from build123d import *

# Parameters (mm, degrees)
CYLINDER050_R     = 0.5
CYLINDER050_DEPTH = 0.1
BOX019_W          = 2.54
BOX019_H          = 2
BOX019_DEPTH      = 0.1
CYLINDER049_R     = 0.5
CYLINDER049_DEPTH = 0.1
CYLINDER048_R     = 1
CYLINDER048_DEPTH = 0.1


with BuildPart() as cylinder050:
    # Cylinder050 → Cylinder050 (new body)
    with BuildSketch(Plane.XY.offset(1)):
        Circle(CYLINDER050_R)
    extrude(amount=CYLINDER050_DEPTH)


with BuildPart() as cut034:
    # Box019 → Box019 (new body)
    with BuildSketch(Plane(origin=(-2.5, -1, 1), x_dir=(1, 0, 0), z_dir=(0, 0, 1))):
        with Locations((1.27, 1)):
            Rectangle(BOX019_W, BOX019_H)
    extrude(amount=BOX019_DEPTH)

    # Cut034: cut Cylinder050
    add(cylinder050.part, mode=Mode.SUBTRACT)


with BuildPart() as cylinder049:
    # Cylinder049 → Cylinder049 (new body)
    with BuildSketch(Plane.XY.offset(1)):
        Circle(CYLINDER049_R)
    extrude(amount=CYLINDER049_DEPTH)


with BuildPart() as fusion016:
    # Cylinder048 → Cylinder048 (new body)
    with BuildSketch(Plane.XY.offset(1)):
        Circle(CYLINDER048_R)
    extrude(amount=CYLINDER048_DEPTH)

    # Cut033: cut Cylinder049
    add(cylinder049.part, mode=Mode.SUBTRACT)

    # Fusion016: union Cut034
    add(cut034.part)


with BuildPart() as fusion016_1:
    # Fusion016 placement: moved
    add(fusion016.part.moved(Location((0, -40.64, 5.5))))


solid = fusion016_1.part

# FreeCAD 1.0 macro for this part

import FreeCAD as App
import Part
import Sketcher
Q = App.Units.Quantity

doc = App.newDocument("Part")
params = doc.addObject("Spreadsheet::Sheet", "Params")
for row, (alias, value) in enumerate([
    ("sketch1_diameter", "1 mm"),
    ("pad1_length", "0.1 mm"),
    ("sketch2_height", "2 mm"),
    ("sketch2_width", "2.54 mm"),
    ("pad2_length", "0.1 mm"),
    ("sketch3_diameter", "1 mm"),
    ("pad3_length", "0.1 mm"),
    ("sketch4_diameter", "2 mm"),
    ("pad4_length", "0.1 mm"),
], start=1):
    params.set(f"A{row}", alias)
    params.set(f"B{row}", "=" + value)
    params.setAlias(f"B{row}", alias)

body = doc.addObject("PartDesign::Body", "Body")

sketch1 = body.newObject("Sketcher::SketchObject", "Sketch")
sketch1.AttachmentSupport = (doc.getObject("XY_Plane"), [""])
sketch1.MapMode = "FlatFace"
sketch1.AttachmentOffset = App.Placement(App.Vector(0, 0, 1), App.Rotation())
sketch1.addGeometry(Part.Circle(App.Vector(0, 0, 0), App.Vector(0, 0, 1), 0.5), False)
sketch1.addConstraint([
    Sketcher.Constraint("Coincident", 0, 3, -1, 1),
    Sketcher.Constraint("Diameter", 0, Q("1 mm")),
])
sketch1.setExpression("Constraints[1]", "Params.sketch1_diameter")
pad1 = body.newObject("PartDesign::Pad", "Pad")
pad1.Profile = sketch1
pad1.setExpression("Length", "Params.pad1_length")
body2 = doc.addObject("PartDesign::Body", "Body001")

sketch2 = body2.newObject("Sketcher::SketchObject", "Sketch001")
sketch2.AttachmentSupport = (doc.getObject("XY_Plane001"), [""])
sketch2.MapMode = "FlatFace"
sketch2.AttachmentOffset = App.Placement(App.Vector(0, 0, 1), App.Rotation())
sketch2.addGeometry([
    Part.LineSegment(App.Vector(-2.5, 1, 0), App.Vector(-2.5, -1, 0)),
    Part.LineSegment(App.Vector(-2.5, -1, 0), App.Vector(0, -1, 0)),
    Part.LineSegment(App.Vector(0, -1, 0), App.Vector(0, 1, 0)),
    Part.LineSegment(App.Vector(0, 1, 0), App.Vector(-2.5, 1, 0)),
], False)
sketch2.addConstraint([
    Sketcher.Constraint("Coincident", 0, 2, 1, 1),
    Sketcher.Constraint("Coincident", 1, 2, 2, 1),
    Sketcher.Constraint("Coincident", 2, 2, 3, 1),
    Sketcher.Constraint("Coincident", 3, 2, 0, 1),
    Sketcher.Constraint("Vertical", 0),
    Sketcher.Constraint("Horizontal", 1),
    Sketcher.Constraint("Vertical", 2),
    Sketcher.Constraint("Horizontal", 3),
    Sketcher.Constraint("DistanceY", 0, 2, 0, 1, Q("2 mm")),
    Sketcher.Constraint("DistanceY", 0, 2, -1, 1, Q("1 mm")),
    Sketcher.Constraint("DistanceX", 1, 1, 1, 2, Q("2.54 mm")),
    Sketcher.Constraint("DistanceX", 0, 2, -1, 1, Q("2.5 mm")),
])
sketch2.setExpression("Constraints[8]", "Params.sketch2_height")
sketch2.setExpression("Constraints[10]", "Params.sketch2_width")
pad2 = body2.newObject("PartDesign::Pad", "Pad001")
pad2.Profile = sketch2
pad2.setExpression("Length", "Params.pad2_length")
doc.recompute()

boolean = body2.newObject("PartDesign::Boolean", "Boolean")
boolean.Type = "Cut"
boolean.addObjects([body])
body3 = doc.addObject("PartDesign::Body", "Body002")

sketch3 = body3.newObject("Sketcher::SketchObject", "Sketch002")
sketch3.AttachmentSupport = (doc.getObject("XY_Plane002"), [""])
sketch3.MapMode = "FlatFace"
sketch3.AttachmentOffset = App.Placement(App.Vector(0, 0, 1), App.Rotation())
sketch3.addGeometry(Part.Circle(App.Vector(0, 0, 0), App.Vector(0, 0, 1), 0.5), False)
sketch3.addConstraint([
    Sketcher.Constraint("Coincident", 0, 3, -1, 1),
    Sketcher.Constraint("Diameter", 0, Q("1 mm")),
])
sketch3.setExpression("Constraints[1]", "Params.sketch3_diameter")
pad3 = body3.newObject("PartDesign::Pad", "Pad002")
pad3.Profile = sketch3
pad3.setExpression("Length", "Params.pad3_length")
body4 = doc.addObject("PartDesign::Body", "Body003")

sketch4 = body4.newObject("Sketcher::SketchObject", "Sketch003")
sketch4.AttachmentSupport = (doc.getObject("XY_Plane003"), [""])
sketch4.MapMode = "FlatFace"
sketch4.AttachmentOffset = App.Placement(App.Vector(0, 0, 1), App.Rotation())
sketch4.addGeometry(Part.Circle(App.Vector(0, 0, 0), App.Vector(0, 0, 1), 1), False)
sketch4.addConstraint([
    Sketcher.Constraint("Coincident", 0, 3, -1, 1),
    Sketcher.Constraint("Diameter", 0, Q("2 mm")),
])
sketch4.setExpression("Constraints[1]", "Params.sketch4_diameter")
pad4 = body4.newObject("PartDesign::Pad", "Pad003")
pad4.Profile = sketch4
pad4.setExpression("Length", "Params.pad4_length")
doc.recompute()

boolean2 = body4.newObject("PartDesign::Boolean", "Boolean001")
boolean2.Type = "Cut"
boolean2.addObjects([body3])
doc.recompute()

boolean3 = body4.newObject("PartDesign::Boolean", "Boolean002")
boolean3.Type = "Fuse"
boolean3.addObjects([body2])
body5 = doc.addObject("PartDesign::Body", "Body004")
doc.recompute()

body4.Placement = App.Placement(App.Vector(0, -40.64, 5.5), App.Rotation(App.Vector(0, 0, 1), 0))
boolean4 = body5.newObject("PartDesign::Boolean", "Boolean003")
boolean4.Type = "Fuse"
boolean4.addObjects([body4])

doc.recompute()
